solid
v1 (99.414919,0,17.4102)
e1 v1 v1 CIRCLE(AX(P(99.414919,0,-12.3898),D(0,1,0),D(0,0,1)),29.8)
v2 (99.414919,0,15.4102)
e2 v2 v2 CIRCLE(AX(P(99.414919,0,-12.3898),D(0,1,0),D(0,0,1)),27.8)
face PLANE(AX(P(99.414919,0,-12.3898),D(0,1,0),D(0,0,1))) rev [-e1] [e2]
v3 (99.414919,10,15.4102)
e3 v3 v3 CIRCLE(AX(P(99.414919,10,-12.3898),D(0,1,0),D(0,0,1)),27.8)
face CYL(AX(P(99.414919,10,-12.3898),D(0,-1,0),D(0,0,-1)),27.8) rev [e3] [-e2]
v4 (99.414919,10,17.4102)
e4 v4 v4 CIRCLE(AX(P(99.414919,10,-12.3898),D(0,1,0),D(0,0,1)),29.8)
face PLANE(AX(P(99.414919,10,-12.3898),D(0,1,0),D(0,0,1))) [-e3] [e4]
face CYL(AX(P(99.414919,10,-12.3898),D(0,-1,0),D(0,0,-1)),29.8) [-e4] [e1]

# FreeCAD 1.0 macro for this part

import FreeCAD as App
import Part
import Sketcher
from FreeCAD import Vector

doc = App.newDocument("Part")
body = doc.addObject("PartDesign::Body", "Body")

# Sketch on XZ plane
sketch1 = doc.addObject("Sketcher::SketchObject", "Sketch")
body.addObject(sketch1)
sketch1.AttachmentSupport = (doc.XZ_Plane, [""])
sketch1.MapMode = "FlatFace"
sketch1.addGeometry(Part.Circle(Vector(99.414919, -12.3898, 0), Vector(0, 0, 1), 29.8), False)
sketch1.addGeometry(Part.Circle(Vector(99.414919, -12.3898, 0), Vector(0, 0, 1), 27.8), False)
sketch1.addConstraint(Sketcher.Constraint("Coincident", 1, 3, 0, 3))
sketch1.addConstraint(Sketcher.Constraint("Diameter", 0, 59.6))
sketch1.addConstraint(Sketcher.Constraint("Diameter", 1, 55.6))
sketch1.addConstraint(Sketcher.Constraint("DistanceY", 0, 3, -1, 1, 12.3898))
sketch1.addConstraint(Sketcher.Constraint("DistanceX", -1, 1, 0, 3, 99.414919))
pad1 = doc.addObject("PartDesign::Pad", "Pad")
body.addObject(pad1)
pad1.Profile = sketch1
pad1.Length = 10
pad1.Reversed = True

doc.recompute()
